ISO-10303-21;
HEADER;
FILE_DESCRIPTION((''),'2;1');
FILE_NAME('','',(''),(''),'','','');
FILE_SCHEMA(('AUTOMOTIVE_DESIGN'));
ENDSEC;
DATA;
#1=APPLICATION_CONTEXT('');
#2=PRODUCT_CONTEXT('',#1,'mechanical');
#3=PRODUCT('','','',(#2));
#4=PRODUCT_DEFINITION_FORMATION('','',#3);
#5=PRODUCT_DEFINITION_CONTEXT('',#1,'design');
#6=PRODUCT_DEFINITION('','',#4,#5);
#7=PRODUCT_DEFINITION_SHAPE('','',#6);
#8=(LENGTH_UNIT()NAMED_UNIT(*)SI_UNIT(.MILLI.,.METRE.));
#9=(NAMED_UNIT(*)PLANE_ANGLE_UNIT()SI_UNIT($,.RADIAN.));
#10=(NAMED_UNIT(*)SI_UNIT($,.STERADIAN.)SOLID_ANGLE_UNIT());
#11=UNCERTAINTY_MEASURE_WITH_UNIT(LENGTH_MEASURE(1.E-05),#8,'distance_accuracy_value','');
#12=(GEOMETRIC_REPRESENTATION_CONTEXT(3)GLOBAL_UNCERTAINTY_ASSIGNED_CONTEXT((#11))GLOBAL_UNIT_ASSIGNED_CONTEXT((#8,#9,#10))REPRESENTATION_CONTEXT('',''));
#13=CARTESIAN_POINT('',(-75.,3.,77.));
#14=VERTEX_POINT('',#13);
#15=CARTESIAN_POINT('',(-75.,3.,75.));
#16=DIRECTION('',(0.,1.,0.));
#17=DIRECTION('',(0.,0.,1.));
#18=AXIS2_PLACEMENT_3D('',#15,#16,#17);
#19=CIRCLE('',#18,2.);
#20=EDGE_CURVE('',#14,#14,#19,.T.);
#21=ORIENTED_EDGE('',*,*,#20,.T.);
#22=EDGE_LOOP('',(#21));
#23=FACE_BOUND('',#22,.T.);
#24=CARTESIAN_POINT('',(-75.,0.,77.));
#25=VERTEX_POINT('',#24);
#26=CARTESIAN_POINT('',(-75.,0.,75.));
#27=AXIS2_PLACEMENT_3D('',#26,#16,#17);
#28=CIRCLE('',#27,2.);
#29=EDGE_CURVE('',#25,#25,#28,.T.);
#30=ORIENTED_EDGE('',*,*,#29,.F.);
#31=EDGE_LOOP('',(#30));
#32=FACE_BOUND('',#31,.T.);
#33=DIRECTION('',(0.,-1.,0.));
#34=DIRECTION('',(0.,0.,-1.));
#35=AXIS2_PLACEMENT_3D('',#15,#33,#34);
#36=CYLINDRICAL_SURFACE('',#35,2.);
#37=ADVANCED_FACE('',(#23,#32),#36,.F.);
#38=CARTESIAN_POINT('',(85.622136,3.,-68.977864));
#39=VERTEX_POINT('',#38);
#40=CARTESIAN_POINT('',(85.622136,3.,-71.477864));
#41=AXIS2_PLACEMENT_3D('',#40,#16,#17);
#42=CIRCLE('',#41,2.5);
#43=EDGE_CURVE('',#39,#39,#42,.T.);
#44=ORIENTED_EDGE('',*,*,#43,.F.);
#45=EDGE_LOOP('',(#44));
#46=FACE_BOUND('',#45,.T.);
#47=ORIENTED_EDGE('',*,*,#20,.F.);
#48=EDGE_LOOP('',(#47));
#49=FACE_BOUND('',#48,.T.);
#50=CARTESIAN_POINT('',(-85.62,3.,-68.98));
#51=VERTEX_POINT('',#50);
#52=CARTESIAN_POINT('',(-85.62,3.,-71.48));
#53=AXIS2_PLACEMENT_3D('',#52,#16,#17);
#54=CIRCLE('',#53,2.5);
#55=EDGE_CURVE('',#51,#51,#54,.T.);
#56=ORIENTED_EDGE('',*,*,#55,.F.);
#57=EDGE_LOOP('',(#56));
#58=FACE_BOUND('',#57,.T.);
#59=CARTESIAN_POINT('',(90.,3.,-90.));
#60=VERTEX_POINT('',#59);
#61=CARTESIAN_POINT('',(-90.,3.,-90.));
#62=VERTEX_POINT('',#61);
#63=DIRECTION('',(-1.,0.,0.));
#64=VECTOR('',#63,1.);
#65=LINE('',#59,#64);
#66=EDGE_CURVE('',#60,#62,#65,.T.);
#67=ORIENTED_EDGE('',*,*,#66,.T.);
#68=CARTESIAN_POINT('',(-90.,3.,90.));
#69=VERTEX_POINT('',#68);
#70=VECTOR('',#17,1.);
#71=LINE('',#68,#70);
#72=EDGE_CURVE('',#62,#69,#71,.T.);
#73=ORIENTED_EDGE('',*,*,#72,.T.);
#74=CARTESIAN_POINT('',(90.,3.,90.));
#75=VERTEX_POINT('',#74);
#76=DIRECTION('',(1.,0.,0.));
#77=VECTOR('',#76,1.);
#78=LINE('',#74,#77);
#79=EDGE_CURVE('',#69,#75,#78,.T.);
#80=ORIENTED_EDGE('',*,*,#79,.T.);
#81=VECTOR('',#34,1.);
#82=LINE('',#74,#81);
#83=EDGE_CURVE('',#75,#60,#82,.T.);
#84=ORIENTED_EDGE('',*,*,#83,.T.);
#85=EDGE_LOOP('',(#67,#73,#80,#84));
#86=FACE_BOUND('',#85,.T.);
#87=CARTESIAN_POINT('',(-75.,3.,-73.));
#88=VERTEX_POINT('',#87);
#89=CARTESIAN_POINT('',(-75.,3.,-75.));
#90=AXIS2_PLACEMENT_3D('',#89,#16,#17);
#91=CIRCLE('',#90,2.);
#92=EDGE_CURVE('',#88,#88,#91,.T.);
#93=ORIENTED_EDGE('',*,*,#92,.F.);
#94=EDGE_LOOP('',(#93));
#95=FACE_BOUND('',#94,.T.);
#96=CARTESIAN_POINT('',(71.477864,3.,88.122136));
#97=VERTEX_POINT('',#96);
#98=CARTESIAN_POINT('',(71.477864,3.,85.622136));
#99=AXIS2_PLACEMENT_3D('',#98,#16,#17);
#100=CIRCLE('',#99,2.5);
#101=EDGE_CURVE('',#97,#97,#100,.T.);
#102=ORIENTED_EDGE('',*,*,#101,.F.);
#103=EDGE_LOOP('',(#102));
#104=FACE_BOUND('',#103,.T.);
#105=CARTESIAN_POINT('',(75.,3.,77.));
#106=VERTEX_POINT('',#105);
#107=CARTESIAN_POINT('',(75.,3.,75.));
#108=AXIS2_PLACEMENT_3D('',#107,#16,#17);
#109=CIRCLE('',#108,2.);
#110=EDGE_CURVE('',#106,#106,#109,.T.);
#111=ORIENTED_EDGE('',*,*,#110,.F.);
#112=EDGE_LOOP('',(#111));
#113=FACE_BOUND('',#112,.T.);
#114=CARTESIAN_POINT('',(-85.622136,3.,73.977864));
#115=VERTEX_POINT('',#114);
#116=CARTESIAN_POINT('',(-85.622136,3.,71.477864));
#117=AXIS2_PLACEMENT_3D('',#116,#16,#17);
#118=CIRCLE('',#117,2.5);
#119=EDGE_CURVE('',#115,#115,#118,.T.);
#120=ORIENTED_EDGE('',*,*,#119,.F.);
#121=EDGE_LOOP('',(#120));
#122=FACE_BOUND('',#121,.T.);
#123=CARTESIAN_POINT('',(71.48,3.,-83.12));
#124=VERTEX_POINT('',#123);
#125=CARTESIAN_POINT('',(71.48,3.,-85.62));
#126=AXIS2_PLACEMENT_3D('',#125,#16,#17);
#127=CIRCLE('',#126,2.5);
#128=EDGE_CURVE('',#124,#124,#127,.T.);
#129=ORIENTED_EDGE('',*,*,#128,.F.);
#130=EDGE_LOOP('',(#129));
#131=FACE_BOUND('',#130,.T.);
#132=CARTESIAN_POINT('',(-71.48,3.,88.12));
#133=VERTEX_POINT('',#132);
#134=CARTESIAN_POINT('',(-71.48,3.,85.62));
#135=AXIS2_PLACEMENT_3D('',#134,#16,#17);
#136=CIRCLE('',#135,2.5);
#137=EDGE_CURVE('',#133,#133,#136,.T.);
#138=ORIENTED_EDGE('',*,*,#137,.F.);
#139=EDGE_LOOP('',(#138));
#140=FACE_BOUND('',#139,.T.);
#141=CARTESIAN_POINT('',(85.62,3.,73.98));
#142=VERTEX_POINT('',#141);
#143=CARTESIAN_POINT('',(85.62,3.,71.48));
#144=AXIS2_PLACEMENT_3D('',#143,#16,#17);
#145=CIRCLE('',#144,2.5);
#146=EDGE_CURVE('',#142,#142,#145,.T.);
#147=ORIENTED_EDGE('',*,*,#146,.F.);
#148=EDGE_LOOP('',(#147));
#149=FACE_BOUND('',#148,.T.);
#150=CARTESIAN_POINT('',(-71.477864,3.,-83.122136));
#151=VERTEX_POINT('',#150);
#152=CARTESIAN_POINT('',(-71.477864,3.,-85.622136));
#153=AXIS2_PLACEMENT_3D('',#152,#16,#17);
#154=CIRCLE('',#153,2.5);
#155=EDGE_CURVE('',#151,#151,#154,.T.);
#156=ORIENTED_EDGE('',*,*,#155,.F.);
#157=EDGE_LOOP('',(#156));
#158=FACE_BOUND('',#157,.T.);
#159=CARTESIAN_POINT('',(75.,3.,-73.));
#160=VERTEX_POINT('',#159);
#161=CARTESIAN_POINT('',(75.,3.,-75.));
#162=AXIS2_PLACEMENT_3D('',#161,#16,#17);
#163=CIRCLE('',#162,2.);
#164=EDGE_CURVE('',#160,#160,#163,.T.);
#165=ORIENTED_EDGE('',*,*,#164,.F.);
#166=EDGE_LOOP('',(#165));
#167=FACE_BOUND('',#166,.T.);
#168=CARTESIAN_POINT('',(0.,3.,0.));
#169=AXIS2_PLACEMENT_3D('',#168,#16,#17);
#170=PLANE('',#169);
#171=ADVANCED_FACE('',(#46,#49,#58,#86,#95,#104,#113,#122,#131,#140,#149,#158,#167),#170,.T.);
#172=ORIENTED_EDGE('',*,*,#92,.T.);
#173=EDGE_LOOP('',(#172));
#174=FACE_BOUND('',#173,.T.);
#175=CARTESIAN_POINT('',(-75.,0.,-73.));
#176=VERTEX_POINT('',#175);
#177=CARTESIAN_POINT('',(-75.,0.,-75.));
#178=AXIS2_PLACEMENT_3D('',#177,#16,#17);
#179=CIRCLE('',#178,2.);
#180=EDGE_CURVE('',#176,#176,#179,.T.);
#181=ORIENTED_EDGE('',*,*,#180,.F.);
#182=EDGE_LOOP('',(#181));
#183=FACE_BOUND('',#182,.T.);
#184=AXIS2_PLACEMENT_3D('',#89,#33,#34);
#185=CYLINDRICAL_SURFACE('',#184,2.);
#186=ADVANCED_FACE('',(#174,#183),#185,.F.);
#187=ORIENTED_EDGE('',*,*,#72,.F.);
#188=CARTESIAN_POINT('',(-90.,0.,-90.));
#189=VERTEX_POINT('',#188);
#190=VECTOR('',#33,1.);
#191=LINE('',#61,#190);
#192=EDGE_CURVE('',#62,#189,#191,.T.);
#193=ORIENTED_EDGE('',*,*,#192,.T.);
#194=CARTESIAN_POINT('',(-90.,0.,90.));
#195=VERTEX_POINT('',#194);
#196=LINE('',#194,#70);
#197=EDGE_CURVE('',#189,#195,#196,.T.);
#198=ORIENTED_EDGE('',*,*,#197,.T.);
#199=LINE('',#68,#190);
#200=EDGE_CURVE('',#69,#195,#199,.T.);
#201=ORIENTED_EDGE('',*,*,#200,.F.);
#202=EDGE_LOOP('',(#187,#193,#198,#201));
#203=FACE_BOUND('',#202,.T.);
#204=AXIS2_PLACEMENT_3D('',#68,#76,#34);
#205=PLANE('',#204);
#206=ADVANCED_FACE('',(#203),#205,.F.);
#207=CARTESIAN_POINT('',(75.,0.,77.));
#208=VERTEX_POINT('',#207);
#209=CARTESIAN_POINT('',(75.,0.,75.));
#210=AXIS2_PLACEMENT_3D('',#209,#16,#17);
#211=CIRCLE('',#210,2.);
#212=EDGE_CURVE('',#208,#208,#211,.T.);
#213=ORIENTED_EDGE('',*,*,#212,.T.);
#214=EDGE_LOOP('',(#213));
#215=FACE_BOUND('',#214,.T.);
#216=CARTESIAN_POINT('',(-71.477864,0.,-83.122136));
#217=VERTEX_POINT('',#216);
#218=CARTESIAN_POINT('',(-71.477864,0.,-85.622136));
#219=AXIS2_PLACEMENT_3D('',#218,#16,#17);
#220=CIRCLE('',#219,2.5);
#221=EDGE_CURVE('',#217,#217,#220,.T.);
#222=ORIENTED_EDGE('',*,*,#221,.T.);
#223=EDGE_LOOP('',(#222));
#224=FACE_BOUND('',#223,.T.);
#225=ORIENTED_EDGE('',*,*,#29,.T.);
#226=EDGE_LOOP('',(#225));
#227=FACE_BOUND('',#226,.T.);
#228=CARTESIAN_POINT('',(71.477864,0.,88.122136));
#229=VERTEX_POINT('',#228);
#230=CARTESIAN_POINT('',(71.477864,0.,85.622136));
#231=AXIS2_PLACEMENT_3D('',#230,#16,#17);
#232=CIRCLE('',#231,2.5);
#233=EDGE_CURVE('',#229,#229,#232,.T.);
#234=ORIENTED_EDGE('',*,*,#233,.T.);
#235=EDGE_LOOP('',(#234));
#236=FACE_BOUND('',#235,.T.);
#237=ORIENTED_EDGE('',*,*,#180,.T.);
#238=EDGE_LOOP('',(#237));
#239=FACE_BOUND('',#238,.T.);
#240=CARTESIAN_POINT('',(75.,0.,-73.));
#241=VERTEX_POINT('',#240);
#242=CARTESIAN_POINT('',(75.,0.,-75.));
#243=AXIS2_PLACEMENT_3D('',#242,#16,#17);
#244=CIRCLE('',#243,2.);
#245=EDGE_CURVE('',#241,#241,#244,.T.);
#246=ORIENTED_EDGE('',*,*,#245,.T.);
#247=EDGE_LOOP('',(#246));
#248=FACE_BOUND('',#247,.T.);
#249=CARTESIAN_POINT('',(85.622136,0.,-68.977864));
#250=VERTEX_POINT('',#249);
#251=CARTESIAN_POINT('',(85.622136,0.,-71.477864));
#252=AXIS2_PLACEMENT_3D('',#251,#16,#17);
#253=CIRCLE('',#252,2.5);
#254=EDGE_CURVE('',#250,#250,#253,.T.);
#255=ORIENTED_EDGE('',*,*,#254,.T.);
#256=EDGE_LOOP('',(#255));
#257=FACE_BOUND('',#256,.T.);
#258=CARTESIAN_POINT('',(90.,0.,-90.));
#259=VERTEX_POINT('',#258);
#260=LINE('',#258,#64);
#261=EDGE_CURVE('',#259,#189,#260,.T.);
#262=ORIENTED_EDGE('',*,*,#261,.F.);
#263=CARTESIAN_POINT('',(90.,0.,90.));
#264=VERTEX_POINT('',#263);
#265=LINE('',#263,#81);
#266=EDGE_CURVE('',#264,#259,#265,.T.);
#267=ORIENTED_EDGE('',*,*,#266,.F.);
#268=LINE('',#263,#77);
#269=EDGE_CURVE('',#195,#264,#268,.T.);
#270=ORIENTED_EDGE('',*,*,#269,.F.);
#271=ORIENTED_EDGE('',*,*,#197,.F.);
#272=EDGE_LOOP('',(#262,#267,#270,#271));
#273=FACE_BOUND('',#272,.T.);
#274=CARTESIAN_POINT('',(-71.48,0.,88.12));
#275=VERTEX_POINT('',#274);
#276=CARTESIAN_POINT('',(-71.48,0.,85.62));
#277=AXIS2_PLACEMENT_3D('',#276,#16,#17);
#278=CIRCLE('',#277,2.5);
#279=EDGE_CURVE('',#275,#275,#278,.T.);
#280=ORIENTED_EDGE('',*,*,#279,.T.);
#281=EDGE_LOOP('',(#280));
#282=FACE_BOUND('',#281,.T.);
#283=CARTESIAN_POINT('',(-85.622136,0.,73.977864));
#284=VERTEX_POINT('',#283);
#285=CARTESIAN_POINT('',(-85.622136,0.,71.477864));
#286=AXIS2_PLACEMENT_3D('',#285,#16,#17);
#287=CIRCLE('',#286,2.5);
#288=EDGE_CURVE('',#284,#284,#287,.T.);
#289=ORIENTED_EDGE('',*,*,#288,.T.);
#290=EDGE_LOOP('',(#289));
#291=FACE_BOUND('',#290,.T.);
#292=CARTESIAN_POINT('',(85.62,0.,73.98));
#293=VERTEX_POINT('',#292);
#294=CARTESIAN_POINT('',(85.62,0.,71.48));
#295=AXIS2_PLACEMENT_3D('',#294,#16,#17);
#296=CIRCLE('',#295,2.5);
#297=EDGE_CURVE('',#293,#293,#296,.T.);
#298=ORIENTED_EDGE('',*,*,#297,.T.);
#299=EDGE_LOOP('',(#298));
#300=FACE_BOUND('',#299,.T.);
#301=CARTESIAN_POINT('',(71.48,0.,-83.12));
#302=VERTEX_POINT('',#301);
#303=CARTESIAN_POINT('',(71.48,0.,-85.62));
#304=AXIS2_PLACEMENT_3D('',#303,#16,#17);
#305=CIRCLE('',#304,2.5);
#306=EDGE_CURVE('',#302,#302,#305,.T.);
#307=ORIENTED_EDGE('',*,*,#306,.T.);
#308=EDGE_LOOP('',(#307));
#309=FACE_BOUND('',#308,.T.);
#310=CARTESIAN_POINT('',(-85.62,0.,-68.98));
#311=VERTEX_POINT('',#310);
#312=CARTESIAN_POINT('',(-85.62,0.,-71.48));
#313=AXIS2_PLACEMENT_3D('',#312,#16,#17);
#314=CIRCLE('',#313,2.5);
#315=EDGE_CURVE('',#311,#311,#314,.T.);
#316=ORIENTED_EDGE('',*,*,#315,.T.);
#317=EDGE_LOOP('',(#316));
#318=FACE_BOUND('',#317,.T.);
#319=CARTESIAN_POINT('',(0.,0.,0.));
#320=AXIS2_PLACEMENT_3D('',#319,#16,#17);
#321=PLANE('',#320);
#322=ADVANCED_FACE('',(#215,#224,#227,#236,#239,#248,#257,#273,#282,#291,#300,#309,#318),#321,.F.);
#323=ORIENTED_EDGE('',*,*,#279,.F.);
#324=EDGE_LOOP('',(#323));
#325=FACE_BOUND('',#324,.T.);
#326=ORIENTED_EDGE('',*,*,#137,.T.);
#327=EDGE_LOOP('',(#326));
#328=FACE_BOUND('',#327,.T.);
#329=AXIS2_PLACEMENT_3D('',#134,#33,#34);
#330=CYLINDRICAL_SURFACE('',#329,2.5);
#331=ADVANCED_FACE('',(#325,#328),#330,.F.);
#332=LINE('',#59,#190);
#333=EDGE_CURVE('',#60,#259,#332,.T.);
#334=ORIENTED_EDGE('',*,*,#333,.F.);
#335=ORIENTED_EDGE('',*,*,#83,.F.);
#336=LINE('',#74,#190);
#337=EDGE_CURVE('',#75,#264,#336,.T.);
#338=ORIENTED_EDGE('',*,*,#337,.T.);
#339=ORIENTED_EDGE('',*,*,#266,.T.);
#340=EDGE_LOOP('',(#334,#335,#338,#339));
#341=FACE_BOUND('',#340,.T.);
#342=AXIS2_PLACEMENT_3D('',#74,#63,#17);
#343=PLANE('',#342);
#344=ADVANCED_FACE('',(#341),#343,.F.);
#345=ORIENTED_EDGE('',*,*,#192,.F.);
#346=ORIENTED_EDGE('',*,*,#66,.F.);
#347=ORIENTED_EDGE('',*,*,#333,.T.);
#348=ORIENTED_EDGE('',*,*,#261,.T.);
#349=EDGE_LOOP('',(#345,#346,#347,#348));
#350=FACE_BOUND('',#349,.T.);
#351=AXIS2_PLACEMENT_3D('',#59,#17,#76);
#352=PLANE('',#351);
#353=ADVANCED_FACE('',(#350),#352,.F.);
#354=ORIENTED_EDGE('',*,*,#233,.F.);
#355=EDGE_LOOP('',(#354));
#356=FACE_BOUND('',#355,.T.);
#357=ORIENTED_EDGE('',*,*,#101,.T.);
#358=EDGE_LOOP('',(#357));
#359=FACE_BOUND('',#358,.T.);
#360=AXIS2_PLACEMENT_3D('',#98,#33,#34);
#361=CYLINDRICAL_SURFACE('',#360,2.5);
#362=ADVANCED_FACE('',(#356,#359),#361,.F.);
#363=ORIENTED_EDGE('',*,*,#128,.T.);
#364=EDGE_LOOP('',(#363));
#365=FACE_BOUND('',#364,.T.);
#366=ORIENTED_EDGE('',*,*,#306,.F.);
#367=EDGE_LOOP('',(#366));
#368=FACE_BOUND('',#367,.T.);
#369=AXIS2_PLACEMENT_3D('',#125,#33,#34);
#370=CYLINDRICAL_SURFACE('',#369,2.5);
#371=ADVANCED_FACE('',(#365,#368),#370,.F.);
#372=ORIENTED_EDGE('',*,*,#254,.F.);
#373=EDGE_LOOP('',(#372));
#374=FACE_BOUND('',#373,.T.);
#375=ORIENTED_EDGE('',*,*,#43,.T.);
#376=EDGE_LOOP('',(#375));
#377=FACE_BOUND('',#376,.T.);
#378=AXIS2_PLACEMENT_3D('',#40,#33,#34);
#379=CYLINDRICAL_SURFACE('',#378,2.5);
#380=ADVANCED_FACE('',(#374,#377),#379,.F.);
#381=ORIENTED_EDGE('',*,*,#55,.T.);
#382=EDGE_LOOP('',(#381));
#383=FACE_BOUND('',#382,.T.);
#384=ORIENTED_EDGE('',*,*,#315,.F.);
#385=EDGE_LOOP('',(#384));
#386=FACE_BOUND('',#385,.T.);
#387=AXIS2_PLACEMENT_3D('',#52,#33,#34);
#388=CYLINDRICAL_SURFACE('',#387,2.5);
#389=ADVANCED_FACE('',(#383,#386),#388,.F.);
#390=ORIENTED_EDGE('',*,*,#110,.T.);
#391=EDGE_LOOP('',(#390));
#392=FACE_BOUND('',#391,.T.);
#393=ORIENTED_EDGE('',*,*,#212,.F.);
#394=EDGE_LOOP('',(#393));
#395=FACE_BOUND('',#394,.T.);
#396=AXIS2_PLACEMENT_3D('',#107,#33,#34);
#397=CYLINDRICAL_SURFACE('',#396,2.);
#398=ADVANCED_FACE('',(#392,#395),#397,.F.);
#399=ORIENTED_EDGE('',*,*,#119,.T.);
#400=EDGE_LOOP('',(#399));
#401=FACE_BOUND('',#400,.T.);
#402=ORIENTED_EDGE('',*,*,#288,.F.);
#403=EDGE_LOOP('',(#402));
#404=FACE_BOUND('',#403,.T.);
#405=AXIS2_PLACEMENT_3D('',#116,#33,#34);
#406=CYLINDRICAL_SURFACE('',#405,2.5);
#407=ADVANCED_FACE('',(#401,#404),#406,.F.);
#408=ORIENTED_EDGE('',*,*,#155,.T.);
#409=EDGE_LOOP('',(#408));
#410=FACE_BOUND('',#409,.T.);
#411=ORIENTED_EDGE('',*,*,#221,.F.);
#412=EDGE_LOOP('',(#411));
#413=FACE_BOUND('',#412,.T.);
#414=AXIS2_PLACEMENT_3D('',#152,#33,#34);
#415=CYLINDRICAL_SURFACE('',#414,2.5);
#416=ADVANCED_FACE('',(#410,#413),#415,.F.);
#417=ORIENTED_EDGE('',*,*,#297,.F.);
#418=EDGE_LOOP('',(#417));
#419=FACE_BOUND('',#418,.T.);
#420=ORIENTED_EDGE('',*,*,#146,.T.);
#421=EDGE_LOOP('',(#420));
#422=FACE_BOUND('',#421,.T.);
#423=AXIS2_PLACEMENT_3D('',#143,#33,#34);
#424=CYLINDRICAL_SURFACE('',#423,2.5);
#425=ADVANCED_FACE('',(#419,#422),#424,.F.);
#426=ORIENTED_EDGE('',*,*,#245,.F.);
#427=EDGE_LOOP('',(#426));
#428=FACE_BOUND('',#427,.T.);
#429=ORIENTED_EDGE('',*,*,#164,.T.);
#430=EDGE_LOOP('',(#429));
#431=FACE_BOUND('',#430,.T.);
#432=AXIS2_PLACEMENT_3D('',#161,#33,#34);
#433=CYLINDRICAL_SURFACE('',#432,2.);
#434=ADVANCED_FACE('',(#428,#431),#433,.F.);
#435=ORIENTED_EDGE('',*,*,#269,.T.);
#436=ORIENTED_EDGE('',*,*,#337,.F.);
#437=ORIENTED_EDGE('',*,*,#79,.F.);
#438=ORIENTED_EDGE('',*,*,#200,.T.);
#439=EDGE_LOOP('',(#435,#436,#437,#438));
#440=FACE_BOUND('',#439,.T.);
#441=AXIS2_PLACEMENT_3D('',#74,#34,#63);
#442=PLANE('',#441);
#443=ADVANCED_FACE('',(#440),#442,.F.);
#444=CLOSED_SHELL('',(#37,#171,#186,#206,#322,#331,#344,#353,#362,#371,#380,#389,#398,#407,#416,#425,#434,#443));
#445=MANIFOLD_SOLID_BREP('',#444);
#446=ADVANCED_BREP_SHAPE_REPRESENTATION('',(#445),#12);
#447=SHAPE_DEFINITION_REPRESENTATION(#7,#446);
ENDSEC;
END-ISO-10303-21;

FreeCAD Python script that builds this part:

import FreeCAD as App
import Part
import Sketcher

V = App.Vector
Q = App.Units.Quantity


def add_polygon(sketch, points):
    """Adds a closed chain of lines whose ends are joined by coincident constraints."""
    first, n = sketch.GeometryCount, len(points)
    for a, b in zip(points, points[1:] + points[:1]):
        sketch.addGeometry(Part.LineSegment(App.Vector(*a, 0), App.Vector(*b, 0)), False)
    for i in range(n):
        sketch.addConstraint(Sketcher.Constraint("Coincident", first + i, 2, first + (i + 1) % n, 1))

doc = App.newDocument("Part")
params = doc.addObject("Spreadsheet::Sheet", "Params")
for row, (alias, value) in enumerate([
    ("sketch1_diameter", "5 mm"),
    ("sketch1_diameter2", "4 mm"),
    ("sketch1_width", "180 mm"),
    ("pad1_length", "3 mm"),
], start=1):
    params.set(f"A{row}", alias)
    params.set(f"B{row}", "=" + value)
    params.setAlias(f"B{row}", alias)

body = doc.addObject("PartDesign::Body", "Body")

# Sketch on XZ plane
sketch1 = body.newObject("Sketcher::SketchObject", "Sketch")
sketch1.AttachmentSupport = (doc.getObject("XZ_Plane"), [""])
sketch1.MapMode = "FlatFace"
add_polygon(sketch1, [(-90, -90), (-90, 90), (90, 90), (90, -90)])  # lines 0-3
sketch1.addGeometry(Part.Circle(V(-71.5, 85.6, 0), V(0, 0, 1), 2.5), False)  # 4
sketch1.addGeometry(Part.Circle(V(-85.6, 71.5, 0), V(0, 0, 1), 2.5), False)  # 5
sketch1.addGeometry(Part.Circle(V(-75, 75, 0), V(0, 0, 1), 2), False)  # 6
sketch1.addGeometry(Part.Circle(V(71.5, 85.6, 0), V(0, 0, 1), 2.5), False)  # 7
sketch1.addGeometry(Part.Circle(V(75, 75, 0), V(0, 0, 1), 2), False)  # 8
sketch1.addGeometry(Part.Circle(V(85.6, 71.5, 0), V(0, 0, 1), 2.5), False)  # 9
sketch1.addGeometry(Part.Circle(V(-85.6, -71.5, 0), V(0, 0, 1), 2.5), False)  # 10
sketch1.addGeometry(Part.Circle(V(-75, -75, 0), V(0, 0, 1), 2), False)  # 11
sketch1.addGeometry(Part.Circle(V(-71.5, -85.6, 0), V(0, 0, 1), 2.5), False)  # 12
sketch1.addGeometry(Part.Circle(V(75, -75, 0), V(0, 0, 1), 2), False)  # 13
sketch1.addGeometry(Part.Circle(V(85.6, -71.5, 0), V(0, 0, 1), 2.5), False)  # 14
sketch1.addGeometry(Part.Circle(V(71.5, -85.6, 0), V(0, 0, 1), 2.5), False)  # 15
sketch1.addConstraint([
    Sketcher.Constraint("Vertical", 0),
    Sketcher.Constraint("Horizontal", 1),
    Sketcher.Constraint("Vertical", 2),
    Sketcher.Constraint("Horizontal", 3),
    Sketcher.Constraint("Equal", 4, 5),
    Sketcher.Constraint("Equal", 5, 7),
    Sketcher.Constraint("Equal", 6, 8),
    Sketcher.Constraint("Equal", 7, 9),
    Sketcher.Constraint("Equal", 9, 10),
    Sketcher.Constraint("Equal", 8, 11),
    Sketcher.Constraint("Equal", 10, 12),
    Sketcher.Constraint("Equal", 11, 13),
    Sketcher.Constraint("Equal", 12, 14),
    Sketcher.Constraint("Equal", 14, 15),
    Sketcher.Constraint("Symmetric", 9, 3, 10, 3, -1, 1),
    Sketcher.Constraint("Symmetric", 8, 3, 11, 3, -1, 1),
    Sketcher.Constraint("Symmetric", 7, 3, 12, 3, -1, 1),
    Sketcher.Constraint("Symmetric", 6, 3, 13, 3, -1, 1),
    Sketcher.Constraint("Symmetric", 5, 3, 14, 3, -1, 1),
    Sketcher.Constraint("Symmetric", 4, 3, 15, 3, -1, 1),
    Sketcher.Constraint("Symmetric", 0, 2, 2, 2, -1, 1),
    Sketcher.Constraint("Symmetric", 6, 3, 8, 3, -2),
    Sketcher.Constraint("Equal", 3, 0),
    Sketcher.Constraint("Diameter", 4, Q("5 mm")),
    Sketcher.Constraint("Diameter", 6, Q("4 mm")),
    Sketcher.Constraint("DistanceX", 1, 1, 1, 2, Q("180 mm")),
    Sketcher.Constraint("DistanceX", 6, 3, -1, 1, Q("75 mm")),
    Sketcher.Constraint("DistanceY", -1, 1, 6, 3, Q("75 mm")),
    Sketcher.Constraint("DistanceX", 5, 3, 7, 3, Q("157.1 mm")),
    Sketcher.Constraint("DistanceX", 4, 3, 9, 3, Q("157.1 mm")),
    Sketcher.Constraint("DistanceY", 10, 3, 4, 3, Q("157.1 mm")),
    Sketcher.Constraint("DistanceY", 12, 3, 5, 3, Q("157.1 mm")),
    Sketcher.Constraint("DistanceX", 4, 3, -1, 1, Q("71.48 mm")),
    Sketcher.Constraint("DistanceY", -1, 1, 4, 3, Q("85.62 mm")),
    Sketcher.Constraint("DistanceY", 5, 3, 7, 3, Q("14.144271 mm")),
    Sketcher.Constraint("DistanceX", 5, 3, 12, 3, Q("14.144271 mm")),
])
sketch1.setExpression("Constraints[27]", "Params.sketch1_diameter")
sketch1.setExpression("Constraints[28]", "Params.sketch1_diameter2")
sketch1.setExpression("Constraints[29]", "Params.sketch1_width")
pad1 = body.newObject("PartDesign::Pad", "Pad")
pad1.Profile = sketch1
pad1.setExpression("Length", "Params.pad1_length")
pad1.Reversed = True

doc.recompute()
